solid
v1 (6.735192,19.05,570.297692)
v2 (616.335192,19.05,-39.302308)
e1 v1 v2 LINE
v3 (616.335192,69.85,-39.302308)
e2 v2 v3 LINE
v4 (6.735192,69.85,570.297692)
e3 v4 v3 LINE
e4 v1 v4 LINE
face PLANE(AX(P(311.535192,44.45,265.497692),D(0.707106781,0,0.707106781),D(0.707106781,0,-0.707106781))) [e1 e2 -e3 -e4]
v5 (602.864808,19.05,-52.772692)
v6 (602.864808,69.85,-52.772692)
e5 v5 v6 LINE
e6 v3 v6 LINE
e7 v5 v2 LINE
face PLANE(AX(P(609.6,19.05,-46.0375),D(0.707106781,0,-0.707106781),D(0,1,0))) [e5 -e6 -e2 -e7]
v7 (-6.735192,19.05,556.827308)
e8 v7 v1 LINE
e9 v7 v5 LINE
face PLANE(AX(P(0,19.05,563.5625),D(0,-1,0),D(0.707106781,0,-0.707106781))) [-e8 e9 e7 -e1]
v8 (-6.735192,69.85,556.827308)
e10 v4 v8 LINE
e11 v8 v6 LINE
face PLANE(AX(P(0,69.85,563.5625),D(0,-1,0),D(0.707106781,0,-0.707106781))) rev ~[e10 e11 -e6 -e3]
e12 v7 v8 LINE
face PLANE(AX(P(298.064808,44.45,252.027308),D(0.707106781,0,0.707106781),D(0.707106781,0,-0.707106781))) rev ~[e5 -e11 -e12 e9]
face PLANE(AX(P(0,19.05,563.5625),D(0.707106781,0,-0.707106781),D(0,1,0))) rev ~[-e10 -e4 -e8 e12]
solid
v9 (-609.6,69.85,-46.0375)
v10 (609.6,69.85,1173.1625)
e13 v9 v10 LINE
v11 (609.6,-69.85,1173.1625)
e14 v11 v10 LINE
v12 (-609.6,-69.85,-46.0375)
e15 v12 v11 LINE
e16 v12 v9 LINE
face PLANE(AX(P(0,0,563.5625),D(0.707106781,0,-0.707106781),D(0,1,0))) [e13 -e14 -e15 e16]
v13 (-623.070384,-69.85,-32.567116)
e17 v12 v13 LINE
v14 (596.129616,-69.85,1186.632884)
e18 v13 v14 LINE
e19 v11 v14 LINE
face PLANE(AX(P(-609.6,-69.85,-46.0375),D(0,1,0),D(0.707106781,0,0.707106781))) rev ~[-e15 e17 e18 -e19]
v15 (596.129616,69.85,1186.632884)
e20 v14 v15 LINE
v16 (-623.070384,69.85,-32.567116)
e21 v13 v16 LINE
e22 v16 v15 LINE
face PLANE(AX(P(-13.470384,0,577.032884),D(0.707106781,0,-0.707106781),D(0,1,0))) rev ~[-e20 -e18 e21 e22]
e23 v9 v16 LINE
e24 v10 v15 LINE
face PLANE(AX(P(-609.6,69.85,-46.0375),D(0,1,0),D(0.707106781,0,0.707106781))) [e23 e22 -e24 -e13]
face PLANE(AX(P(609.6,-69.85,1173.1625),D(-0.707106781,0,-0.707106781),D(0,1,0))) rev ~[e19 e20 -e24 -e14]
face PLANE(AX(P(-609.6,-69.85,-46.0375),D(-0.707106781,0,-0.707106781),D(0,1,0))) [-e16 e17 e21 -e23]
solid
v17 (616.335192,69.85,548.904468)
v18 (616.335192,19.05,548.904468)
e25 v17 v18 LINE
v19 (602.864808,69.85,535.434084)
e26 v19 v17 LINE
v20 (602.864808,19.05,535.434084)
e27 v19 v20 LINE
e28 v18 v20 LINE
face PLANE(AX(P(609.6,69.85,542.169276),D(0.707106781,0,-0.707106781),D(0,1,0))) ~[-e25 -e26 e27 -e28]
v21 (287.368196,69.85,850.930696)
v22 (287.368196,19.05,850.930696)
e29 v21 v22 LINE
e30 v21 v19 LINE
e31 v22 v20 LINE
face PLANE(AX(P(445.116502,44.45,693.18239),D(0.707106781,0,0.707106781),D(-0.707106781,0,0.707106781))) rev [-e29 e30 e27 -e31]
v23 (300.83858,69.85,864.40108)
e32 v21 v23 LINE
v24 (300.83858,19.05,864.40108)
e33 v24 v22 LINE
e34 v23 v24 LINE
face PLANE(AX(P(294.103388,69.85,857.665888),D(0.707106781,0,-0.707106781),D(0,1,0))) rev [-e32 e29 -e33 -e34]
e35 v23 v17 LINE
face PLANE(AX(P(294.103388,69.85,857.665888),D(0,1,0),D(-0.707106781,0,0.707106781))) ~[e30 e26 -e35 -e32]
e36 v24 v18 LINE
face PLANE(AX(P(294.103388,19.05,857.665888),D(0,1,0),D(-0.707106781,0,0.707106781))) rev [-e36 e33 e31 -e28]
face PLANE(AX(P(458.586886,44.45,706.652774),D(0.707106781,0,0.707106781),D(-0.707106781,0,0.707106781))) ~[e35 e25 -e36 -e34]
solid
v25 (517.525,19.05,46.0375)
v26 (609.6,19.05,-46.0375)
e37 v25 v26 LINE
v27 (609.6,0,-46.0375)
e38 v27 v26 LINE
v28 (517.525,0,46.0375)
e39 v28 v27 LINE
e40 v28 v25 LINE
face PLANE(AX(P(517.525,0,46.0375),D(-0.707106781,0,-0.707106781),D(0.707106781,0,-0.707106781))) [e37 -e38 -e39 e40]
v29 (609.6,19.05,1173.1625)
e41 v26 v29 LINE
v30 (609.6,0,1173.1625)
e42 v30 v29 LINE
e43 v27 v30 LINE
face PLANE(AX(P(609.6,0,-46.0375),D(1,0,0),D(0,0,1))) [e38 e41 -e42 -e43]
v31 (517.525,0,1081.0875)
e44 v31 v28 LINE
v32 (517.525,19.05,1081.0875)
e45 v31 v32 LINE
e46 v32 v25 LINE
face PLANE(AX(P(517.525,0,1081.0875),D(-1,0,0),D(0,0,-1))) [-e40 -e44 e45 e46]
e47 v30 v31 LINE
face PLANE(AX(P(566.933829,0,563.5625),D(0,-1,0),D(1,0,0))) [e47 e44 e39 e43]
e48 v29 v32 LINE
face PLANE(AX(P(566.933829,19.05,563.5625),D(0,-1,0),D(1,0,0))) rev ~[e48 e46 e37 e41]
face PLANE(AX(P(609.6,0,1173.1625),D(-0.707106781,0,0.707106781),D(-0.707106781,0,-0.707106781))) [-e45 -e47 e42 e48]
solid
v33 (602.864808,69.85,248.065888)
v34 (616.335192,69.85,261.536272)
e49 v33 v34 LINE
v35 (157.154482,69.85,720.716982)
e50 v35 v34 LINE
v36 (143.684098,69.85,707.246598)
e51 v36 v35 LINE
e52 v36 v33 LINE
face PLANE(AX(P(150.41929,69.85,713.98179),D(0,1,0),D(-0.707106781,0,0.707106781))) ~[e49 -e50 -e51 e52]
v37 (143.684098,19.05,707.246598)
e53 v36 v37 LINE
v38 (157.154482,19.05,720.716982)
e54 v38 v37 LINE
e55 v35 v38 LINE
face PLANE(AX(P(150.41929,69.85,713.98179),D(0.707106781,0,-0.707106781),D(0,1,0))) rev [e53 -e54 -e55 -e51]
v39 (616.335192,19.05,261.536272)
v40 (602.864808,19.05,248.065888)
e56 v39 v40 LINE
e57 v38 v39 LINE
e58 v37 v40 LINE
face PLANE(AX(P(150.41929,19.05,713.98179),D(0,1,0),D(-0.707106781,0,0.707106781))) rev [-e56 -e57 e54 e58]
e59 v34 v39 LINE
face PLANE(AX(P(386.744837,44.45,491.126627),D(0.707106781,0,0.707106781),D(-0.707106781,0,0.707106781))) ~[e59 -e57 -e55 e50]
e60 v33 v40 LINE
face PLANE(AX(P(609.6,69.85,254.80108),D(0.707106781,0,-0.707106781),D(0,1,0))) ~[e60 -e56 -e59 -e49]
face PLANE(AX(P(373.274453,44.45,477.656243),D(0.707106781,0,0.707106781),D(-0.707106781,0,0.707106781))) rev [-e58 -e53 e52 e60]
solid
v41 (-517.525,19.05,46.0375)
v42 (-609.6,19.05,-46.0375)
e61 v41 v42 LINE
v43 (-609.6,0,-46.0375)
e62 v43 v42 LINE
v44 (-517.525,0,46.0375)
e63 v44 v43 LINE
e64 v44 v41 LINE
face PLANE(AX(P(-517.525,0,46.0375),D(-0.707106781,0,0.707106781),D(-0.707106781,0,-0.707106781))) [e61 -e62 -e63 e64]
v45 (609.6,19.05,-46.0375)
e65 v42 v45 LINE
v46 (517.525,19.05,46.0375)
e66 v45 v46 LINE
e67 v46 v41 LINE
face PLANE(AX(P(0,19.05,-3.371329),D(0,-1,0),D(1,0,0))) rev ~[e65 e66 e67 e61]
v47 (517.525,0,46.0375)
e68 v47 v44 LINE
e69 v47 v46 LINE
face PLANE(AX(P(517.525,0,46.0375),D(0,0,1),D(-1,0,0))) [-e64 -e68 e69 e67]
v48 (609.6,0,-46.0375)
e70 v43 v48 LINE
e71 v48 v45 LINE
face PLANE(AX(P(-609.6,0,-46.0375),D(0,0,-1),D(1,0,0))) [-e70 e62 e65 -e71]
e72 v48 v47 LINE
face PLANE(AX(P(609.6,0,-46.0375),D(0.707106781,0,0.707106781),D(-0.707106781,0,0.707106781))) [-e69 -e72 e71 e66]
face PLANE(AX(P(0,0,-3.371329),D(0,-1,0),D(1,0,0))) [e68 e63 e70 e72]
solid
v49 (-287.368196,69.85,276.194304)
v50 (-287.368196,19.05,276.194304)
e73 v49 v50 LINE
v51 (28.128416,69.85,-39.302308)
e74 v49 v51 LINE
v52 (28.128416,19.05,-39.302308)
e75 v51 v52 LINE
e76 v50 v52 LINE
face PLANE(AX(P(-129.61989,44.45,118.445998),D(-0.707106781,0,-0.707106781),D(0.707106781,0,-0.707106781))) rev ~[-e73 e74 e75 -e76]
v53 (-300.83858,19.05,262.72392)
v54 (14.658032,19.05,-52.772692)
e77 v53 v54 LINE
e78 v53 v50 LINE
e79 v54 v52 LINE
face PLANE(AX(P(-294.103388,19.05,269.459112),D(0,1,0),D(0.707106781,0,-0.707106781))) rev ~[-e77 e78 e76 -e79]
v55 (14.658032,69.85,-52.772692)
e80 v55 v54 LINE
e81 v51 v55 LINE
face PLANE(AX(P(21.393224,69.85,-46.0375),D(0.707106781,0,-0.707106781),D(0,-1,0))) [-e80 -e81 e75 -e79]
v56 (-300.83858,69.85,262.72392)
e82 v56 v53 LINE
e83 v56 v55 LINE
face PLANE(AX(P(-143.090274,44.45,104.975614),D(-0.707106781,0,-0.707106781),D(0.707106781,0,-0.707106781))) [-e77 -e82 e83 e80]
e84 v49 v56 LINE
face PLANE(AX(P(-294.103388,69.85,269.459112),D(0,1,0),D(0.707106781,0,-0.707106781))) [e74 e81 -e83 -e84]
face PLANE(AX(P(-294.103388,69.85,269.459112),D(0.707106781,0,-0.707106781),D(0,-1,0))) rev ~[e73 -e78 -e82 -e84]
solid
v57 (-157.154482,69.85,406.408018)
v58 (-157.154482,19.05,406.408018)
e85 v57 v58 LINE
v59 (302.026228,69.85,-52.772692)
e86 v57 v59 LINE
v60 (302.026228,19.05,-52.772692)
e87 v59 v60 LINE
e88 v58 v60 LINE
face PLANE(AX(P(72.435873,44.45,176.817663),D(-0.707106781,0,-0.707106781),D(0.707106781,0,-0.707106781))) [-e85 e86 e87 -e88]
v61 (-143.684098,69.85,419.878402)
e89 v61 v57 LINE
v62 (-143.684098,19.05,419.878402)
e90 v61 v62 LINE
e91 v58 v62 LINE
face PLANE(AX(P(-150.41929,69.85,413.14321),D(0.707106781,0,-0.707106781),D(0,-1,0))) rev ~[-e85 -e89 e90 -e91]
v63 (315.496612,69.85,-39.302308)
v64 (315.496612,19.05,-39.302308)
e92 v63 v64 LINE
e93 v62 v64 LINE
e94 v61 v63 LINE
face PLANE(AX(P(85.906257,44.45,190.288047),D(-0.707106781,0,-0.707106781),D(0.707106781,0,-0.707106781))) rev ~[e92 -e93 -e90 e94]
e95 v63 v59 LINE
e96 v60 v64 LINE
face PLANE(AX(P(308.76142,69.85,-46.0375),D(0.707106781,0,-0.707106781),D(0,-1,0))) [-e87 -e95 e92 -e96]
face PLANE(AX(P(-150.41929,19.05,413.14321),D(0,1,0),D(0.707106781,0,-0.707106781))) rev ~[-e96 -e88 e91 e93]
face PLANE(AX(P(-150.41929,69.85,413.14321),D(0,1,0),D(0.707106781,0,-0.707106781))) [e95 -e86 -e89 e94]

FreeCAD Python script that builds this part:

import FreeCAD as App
import Part
import Sketcher
Q = App.Units.Quantity


def add_polygon(sketch, points):
    """Adds a closed chain of lines whose ends are joined by coincident constraints."""
    first, n = sketch.GeometryCount, len(points)
    for a, b in zip(points, points[1:] + points[:1]):
        sketch.addGeometry(Part.LineSegment(App.Vector(*a, 0), App.Vector(*b, 0)), False)
    for i in range(n):
        sketch.addConstraint(Sketcher.Constraint("Coincident", first + i, 2, first + (i + 1) % n, 1))

doc = App.newDocument("Part")
body = doc.addObject("PartDesign::Body", "Body")

sketch1 = body.newObject("Sketcher::SketchObject", "Sketch")
sketch1.AttachmentSupport = (doc.getObject("XZ_Plane"), [""])
sketch1.MapMode = "FlatFace"
add_polygon(sketch1, [(-610, -46), (610, -46), (518, 46), (-518, 46)])
sketch1.addConstraint(Sketcher.Constraint("Horizontal", 0))
sketch1.addConstraint(Sketcher.Constraint("Horizontal", 2))
sketch1.addConstraint(Sketcher.Constraint("Perpendicular", 1, 3))
sketch1.addConstraint(Sketcher.Constraint("Equal", 1, 3))
sketch1.addConstraint(Sketcher.Constraint("DistanceX", 0, 1, 0, 2, Q("48 in")))
sketch1.addConstraint(Sketcher.Constraint("DistanceX", -1, 1, 0, 2, Q("24 in")))
sketch1.addConstraint(Sketcher.Constraint("DistanceX", 2, 2, 2, 1, Q("40.75 in")))
sketch1.addConstraint(Sketcher.Constraint("DistanceY", 0, 2, -1, 1, Q("1.8125 in")))
pad1 = body.newObject("PartDesign::Pad", "Pad")
pad1.Profile = sketch1
pad1.Length = Q("0.75 in")
pad1.Reversed = True
body2 = doc.addObject("PartDesign::Body", "Body001")

sketch2 = body2.newObject("Sketcher::SketchObject", "Sketch001")
sketch2.AttachmentSupport = (doc.getObject("XZ_Plane001"), [""])
sketch2.MapMode = "FlatFace"
add_polygon(sketch2, [(518, 46), (610, -46), (610, 1173), (518, 1081)])
sketch2.addConstraint(Sketcher.Constraint("Vertical", 1))
sketch2.addConstraint(Sketcher.Constraint("Vertical", 3))
sketch2.addConstraint(Sketcher.Constraint("Perpendicular", 0, 2))
sketch2.addConstraint(Sketcher.Constraint("Equal", 0, 2))
sketch2.addConstraint(Sketcher.Constraint("DistanceY", 1, 1, 1, 2, Q("48 in")))
sketch2.addConstraint(Sketcher.Constraint("DistanceX", -1, 1, 0, 2, Q("24 in")))
sketch2.addConstraint(Sketcher.Constraint("DistanceY", 3, 2, 3, 1, Q("40.75 in")))
sketch2.addConstraint(Sketcher.Constraint("DistanceY", 0, 2, -1, 1, Q("1.8125 in")))
pad2 = body2.newObject("PartDesign::Pad", "Pad001")
pad2.Profile = sketch2
pad2.Length = Q("0.75 in")
pad2.Reversed = True
body3 = doc.addObject("PartDesign::Body", "Body002")

sketch3 = body3.newObject("Sketcher::SketchObject", "Sketch002")
sketch3.Placement = App.Placement(App.Vector(-281.78125, 0, 281.78125), App.Rotation(App.Vector(0, 1, 0), App.Vector(0.707106781, 0, 0.707106781), App.Vector(0.707106781, 0, -0.707106781), "ZXY"))
add_polygon(sketch3, [(-70, 1261), (-70, -464), (70, -464), (70, 1261)])
sketch3.addConstraint(Sketcher.Constraint("Vertical", 0))
sketch3.addConstraint(Sketcher.Constraint("Horizontal", 1))
sketch3.addConstraint(Sketcher.Constraint("Vertical", 2))
sketch3.addConstraint(Sketcher.Constraint("Horizontal", 3))
sketch3.addConstraint(Sketcher.Constraint("DistanceX", 1, 1, 1, 2, Q("5.5 in")))
sketch3.addConstraint(Sketcher.Constraint("DistanceX", 0, 2, -1, 1, Q("2.75 in")))
sketch3.addConstraint(Sketcher.Constraint("DistanceY", 0, 2, 0, 1, 1724.209174))
sketch3.addConstraint(Sketcher.Constraint("DistanceY", 0, 2, -1, 1, 463.605722))
pad3 = body3.newObject("PartDesign::Pad", "Pad002")
pad3.Profile = sketch3
pad3.Length = Q("0.75 in")
pad3.Reversed = True
body4 = doc.addObject("PartDesign::Body", "Body003")

sketch4 = body4.newObject("Sketcher::SketchObject", "Sketch003")
sketch4.Placement = App.Placement(App.Vector(281.78125, 0, 281.78125), App.Rotation(App.Vector(0.707106781, 0, -0.707106781), App.Vector(0, 0.999999999, 0), App.Vector(0.707106781, 0, 0.707106781), "ZXY"))
add_polygon(sketch4, [(-398, 70), (-398, 19), (464, 19), (464, 70)])
sketch4.addConstraint(Sketcher.Constraint("Vertical", 0))
sketch4.addConstraint(Sketcher.Constraint("Horizontal", 1))
sketch4.addConstraint(Sketcher.Constraint("Vertical", 2))
sketch4.addConstraint(Sketcher.Constraint("Horizontal", 3))
sketch4.addConstraint(Sketcher.Constraint("DistanceY", 0, 2, 0, 1, Q("2 in")))
sketch4.addConstraint(Sketcher.Constraint("DistanceY", -1, 1, 0, 2, Q("0.75 in")))
sketch4.addConstraint(Sketcher.Constraint("DistanceX", 1, 1, 1, 2, 862.104587))
sketch4.addConstraint(Sketcher.Constraint("DistanceX", 0, 2, -1, 1, 398.498865))
pad4 = body4.newObject("PartDesign::Pad", "Pad003")
pad4.Profile = sketch4
pad4.Length = Q("0.75 in")
pad4.Midplane = True
body5 = doc.addObject("PartDesign::Body", "Body004")

sketch5 = body5.newObject("Sketcher::SketchObject", "Sketch004")
sketch5.Placement = App.Placement(App.Vector(131.36196, 0, 131.36196), App.Rotation(App.Vector(0.707106781, 0, -0.707106781), App.Vector(0, -0.999999999, 0), App.Vector(-0.707106781, 0, -0.707106781), "ZXY"))
add_polygon(sketch5, [(-398, -19), (-398, -70), (251, -70), (251, -19)])
sketch5.addConstraint(Sketcher.Constraint("Vertical", 0))
sketch5.addConstraint(Sketcher.Constraint("Horizontal", 1))
sketch5.addConstraint(Sketcher.Constraint("Vertical", 2))
sketch5.addConstraint(Sketcher.Constraint("Horizontal", 3))
sketch5.addConstraint(Sketcher.Constraint("DistanceY", 0, 2, 0, 1, Q("2 in")))
sketch5.addConstraint(Sketcher.Constraint("DistanceY", 0, 2, -1, 1, Q("2.75 in")))
sketch5.addConstraint(Sketcher.Constraint("DistanceX", 1, 1, 1, 2, 649.379587))
sketch5.addConstraint(Sketcher.Constraint("DistanceX", 0, 2, -1, 1, 398.498865))
pad5 = body5.newObject("PartDesign::Pad", "Pad004")
pad5.Profile = sketch5
pad5.Length = Q("0.75 in")
pad5.Midplane = True
body6 = doc.addObject("PartDesign::Body", "Body005")

sketch6 = body6.newObject("Sketcher::SketchObject", "Sketch005")
sketch6.Placement = App.Placement(App.Vector(-12.322138, 0, -12.322138), App.Rotation(App.Vector(0.707106781, 0, -0.707106781), App.Vector(0, -0.999999999, 0), App.Vector(-0.707106781, 0, -0.707106781), "ZXY"))
add_polygon(sketch6, [(-398, -19), (-398, -70), (48, -70), (48, -19)])
sketch6.addConstraint(Sketcher.Constraint("Vertical", 0))
sketch6.addConstraint(Sketcher.Constraint("Horizontal", 1))
sketch6.addConstraint(Sketcher.Constraint("Vertical", 2))
sketch6.addConstraint(Sketcher.Constraint("Horizontal", 3))
sketch6.addConstraint(Sketcher.Constraint("DistanceY", 0, 2, 0, 1, Q("2 in")))
sketch6.addConstraint(Sketcher.Constraint("DistanceY", 0, 2, -1, 1, Q("2.75 in")))
sketch6.addConstraint(Sketcher.Constraint("DistanceX", 1, 1, 1, 2, 446.179587))
sketch6.addConstraint(Sketcher.Constraint("DistanceX", 0, 2, -1, 1, 398.498865))
pad6 = body6.newObject("PartDesign::Pad", "Pad005")
pad6.Profile = sketch6
pad6.Length = Q("0.75 in")
pad6.Midplane = True
body7 = doc.addObject("PartDesign::Body", "Body006")
doc.recompute()

mirroring = doc.addObject("Part::Mirroring", "Mirroring")
mirroring.Source = body6
mirroring.Base = App.Vector(563.5625, 9.525, 0)
mirroring.Normal = App.Vector(0.707106781, 0, 0.707106781)
body7.BaseFeature = mirroring
doc.recompute()
body8 = doc.addObject("PartDesign::Body", "Body007")
doc.recompute()

mirroring2 = doc.addObject("Part::Mirroring", "Mirroring001")
mirroring2.Source = body5
mirroring2.Base = App.Vector(563.5625, 9.525, 0)
mirroring2.Normal = App.Vector(0.707106781, 0, 0.707106781)
body8.BaseFeature = mirroring2
doc.recompute()
mirroring.Visibility = False
mirroring2.Visibility = False

doc.recompute()
